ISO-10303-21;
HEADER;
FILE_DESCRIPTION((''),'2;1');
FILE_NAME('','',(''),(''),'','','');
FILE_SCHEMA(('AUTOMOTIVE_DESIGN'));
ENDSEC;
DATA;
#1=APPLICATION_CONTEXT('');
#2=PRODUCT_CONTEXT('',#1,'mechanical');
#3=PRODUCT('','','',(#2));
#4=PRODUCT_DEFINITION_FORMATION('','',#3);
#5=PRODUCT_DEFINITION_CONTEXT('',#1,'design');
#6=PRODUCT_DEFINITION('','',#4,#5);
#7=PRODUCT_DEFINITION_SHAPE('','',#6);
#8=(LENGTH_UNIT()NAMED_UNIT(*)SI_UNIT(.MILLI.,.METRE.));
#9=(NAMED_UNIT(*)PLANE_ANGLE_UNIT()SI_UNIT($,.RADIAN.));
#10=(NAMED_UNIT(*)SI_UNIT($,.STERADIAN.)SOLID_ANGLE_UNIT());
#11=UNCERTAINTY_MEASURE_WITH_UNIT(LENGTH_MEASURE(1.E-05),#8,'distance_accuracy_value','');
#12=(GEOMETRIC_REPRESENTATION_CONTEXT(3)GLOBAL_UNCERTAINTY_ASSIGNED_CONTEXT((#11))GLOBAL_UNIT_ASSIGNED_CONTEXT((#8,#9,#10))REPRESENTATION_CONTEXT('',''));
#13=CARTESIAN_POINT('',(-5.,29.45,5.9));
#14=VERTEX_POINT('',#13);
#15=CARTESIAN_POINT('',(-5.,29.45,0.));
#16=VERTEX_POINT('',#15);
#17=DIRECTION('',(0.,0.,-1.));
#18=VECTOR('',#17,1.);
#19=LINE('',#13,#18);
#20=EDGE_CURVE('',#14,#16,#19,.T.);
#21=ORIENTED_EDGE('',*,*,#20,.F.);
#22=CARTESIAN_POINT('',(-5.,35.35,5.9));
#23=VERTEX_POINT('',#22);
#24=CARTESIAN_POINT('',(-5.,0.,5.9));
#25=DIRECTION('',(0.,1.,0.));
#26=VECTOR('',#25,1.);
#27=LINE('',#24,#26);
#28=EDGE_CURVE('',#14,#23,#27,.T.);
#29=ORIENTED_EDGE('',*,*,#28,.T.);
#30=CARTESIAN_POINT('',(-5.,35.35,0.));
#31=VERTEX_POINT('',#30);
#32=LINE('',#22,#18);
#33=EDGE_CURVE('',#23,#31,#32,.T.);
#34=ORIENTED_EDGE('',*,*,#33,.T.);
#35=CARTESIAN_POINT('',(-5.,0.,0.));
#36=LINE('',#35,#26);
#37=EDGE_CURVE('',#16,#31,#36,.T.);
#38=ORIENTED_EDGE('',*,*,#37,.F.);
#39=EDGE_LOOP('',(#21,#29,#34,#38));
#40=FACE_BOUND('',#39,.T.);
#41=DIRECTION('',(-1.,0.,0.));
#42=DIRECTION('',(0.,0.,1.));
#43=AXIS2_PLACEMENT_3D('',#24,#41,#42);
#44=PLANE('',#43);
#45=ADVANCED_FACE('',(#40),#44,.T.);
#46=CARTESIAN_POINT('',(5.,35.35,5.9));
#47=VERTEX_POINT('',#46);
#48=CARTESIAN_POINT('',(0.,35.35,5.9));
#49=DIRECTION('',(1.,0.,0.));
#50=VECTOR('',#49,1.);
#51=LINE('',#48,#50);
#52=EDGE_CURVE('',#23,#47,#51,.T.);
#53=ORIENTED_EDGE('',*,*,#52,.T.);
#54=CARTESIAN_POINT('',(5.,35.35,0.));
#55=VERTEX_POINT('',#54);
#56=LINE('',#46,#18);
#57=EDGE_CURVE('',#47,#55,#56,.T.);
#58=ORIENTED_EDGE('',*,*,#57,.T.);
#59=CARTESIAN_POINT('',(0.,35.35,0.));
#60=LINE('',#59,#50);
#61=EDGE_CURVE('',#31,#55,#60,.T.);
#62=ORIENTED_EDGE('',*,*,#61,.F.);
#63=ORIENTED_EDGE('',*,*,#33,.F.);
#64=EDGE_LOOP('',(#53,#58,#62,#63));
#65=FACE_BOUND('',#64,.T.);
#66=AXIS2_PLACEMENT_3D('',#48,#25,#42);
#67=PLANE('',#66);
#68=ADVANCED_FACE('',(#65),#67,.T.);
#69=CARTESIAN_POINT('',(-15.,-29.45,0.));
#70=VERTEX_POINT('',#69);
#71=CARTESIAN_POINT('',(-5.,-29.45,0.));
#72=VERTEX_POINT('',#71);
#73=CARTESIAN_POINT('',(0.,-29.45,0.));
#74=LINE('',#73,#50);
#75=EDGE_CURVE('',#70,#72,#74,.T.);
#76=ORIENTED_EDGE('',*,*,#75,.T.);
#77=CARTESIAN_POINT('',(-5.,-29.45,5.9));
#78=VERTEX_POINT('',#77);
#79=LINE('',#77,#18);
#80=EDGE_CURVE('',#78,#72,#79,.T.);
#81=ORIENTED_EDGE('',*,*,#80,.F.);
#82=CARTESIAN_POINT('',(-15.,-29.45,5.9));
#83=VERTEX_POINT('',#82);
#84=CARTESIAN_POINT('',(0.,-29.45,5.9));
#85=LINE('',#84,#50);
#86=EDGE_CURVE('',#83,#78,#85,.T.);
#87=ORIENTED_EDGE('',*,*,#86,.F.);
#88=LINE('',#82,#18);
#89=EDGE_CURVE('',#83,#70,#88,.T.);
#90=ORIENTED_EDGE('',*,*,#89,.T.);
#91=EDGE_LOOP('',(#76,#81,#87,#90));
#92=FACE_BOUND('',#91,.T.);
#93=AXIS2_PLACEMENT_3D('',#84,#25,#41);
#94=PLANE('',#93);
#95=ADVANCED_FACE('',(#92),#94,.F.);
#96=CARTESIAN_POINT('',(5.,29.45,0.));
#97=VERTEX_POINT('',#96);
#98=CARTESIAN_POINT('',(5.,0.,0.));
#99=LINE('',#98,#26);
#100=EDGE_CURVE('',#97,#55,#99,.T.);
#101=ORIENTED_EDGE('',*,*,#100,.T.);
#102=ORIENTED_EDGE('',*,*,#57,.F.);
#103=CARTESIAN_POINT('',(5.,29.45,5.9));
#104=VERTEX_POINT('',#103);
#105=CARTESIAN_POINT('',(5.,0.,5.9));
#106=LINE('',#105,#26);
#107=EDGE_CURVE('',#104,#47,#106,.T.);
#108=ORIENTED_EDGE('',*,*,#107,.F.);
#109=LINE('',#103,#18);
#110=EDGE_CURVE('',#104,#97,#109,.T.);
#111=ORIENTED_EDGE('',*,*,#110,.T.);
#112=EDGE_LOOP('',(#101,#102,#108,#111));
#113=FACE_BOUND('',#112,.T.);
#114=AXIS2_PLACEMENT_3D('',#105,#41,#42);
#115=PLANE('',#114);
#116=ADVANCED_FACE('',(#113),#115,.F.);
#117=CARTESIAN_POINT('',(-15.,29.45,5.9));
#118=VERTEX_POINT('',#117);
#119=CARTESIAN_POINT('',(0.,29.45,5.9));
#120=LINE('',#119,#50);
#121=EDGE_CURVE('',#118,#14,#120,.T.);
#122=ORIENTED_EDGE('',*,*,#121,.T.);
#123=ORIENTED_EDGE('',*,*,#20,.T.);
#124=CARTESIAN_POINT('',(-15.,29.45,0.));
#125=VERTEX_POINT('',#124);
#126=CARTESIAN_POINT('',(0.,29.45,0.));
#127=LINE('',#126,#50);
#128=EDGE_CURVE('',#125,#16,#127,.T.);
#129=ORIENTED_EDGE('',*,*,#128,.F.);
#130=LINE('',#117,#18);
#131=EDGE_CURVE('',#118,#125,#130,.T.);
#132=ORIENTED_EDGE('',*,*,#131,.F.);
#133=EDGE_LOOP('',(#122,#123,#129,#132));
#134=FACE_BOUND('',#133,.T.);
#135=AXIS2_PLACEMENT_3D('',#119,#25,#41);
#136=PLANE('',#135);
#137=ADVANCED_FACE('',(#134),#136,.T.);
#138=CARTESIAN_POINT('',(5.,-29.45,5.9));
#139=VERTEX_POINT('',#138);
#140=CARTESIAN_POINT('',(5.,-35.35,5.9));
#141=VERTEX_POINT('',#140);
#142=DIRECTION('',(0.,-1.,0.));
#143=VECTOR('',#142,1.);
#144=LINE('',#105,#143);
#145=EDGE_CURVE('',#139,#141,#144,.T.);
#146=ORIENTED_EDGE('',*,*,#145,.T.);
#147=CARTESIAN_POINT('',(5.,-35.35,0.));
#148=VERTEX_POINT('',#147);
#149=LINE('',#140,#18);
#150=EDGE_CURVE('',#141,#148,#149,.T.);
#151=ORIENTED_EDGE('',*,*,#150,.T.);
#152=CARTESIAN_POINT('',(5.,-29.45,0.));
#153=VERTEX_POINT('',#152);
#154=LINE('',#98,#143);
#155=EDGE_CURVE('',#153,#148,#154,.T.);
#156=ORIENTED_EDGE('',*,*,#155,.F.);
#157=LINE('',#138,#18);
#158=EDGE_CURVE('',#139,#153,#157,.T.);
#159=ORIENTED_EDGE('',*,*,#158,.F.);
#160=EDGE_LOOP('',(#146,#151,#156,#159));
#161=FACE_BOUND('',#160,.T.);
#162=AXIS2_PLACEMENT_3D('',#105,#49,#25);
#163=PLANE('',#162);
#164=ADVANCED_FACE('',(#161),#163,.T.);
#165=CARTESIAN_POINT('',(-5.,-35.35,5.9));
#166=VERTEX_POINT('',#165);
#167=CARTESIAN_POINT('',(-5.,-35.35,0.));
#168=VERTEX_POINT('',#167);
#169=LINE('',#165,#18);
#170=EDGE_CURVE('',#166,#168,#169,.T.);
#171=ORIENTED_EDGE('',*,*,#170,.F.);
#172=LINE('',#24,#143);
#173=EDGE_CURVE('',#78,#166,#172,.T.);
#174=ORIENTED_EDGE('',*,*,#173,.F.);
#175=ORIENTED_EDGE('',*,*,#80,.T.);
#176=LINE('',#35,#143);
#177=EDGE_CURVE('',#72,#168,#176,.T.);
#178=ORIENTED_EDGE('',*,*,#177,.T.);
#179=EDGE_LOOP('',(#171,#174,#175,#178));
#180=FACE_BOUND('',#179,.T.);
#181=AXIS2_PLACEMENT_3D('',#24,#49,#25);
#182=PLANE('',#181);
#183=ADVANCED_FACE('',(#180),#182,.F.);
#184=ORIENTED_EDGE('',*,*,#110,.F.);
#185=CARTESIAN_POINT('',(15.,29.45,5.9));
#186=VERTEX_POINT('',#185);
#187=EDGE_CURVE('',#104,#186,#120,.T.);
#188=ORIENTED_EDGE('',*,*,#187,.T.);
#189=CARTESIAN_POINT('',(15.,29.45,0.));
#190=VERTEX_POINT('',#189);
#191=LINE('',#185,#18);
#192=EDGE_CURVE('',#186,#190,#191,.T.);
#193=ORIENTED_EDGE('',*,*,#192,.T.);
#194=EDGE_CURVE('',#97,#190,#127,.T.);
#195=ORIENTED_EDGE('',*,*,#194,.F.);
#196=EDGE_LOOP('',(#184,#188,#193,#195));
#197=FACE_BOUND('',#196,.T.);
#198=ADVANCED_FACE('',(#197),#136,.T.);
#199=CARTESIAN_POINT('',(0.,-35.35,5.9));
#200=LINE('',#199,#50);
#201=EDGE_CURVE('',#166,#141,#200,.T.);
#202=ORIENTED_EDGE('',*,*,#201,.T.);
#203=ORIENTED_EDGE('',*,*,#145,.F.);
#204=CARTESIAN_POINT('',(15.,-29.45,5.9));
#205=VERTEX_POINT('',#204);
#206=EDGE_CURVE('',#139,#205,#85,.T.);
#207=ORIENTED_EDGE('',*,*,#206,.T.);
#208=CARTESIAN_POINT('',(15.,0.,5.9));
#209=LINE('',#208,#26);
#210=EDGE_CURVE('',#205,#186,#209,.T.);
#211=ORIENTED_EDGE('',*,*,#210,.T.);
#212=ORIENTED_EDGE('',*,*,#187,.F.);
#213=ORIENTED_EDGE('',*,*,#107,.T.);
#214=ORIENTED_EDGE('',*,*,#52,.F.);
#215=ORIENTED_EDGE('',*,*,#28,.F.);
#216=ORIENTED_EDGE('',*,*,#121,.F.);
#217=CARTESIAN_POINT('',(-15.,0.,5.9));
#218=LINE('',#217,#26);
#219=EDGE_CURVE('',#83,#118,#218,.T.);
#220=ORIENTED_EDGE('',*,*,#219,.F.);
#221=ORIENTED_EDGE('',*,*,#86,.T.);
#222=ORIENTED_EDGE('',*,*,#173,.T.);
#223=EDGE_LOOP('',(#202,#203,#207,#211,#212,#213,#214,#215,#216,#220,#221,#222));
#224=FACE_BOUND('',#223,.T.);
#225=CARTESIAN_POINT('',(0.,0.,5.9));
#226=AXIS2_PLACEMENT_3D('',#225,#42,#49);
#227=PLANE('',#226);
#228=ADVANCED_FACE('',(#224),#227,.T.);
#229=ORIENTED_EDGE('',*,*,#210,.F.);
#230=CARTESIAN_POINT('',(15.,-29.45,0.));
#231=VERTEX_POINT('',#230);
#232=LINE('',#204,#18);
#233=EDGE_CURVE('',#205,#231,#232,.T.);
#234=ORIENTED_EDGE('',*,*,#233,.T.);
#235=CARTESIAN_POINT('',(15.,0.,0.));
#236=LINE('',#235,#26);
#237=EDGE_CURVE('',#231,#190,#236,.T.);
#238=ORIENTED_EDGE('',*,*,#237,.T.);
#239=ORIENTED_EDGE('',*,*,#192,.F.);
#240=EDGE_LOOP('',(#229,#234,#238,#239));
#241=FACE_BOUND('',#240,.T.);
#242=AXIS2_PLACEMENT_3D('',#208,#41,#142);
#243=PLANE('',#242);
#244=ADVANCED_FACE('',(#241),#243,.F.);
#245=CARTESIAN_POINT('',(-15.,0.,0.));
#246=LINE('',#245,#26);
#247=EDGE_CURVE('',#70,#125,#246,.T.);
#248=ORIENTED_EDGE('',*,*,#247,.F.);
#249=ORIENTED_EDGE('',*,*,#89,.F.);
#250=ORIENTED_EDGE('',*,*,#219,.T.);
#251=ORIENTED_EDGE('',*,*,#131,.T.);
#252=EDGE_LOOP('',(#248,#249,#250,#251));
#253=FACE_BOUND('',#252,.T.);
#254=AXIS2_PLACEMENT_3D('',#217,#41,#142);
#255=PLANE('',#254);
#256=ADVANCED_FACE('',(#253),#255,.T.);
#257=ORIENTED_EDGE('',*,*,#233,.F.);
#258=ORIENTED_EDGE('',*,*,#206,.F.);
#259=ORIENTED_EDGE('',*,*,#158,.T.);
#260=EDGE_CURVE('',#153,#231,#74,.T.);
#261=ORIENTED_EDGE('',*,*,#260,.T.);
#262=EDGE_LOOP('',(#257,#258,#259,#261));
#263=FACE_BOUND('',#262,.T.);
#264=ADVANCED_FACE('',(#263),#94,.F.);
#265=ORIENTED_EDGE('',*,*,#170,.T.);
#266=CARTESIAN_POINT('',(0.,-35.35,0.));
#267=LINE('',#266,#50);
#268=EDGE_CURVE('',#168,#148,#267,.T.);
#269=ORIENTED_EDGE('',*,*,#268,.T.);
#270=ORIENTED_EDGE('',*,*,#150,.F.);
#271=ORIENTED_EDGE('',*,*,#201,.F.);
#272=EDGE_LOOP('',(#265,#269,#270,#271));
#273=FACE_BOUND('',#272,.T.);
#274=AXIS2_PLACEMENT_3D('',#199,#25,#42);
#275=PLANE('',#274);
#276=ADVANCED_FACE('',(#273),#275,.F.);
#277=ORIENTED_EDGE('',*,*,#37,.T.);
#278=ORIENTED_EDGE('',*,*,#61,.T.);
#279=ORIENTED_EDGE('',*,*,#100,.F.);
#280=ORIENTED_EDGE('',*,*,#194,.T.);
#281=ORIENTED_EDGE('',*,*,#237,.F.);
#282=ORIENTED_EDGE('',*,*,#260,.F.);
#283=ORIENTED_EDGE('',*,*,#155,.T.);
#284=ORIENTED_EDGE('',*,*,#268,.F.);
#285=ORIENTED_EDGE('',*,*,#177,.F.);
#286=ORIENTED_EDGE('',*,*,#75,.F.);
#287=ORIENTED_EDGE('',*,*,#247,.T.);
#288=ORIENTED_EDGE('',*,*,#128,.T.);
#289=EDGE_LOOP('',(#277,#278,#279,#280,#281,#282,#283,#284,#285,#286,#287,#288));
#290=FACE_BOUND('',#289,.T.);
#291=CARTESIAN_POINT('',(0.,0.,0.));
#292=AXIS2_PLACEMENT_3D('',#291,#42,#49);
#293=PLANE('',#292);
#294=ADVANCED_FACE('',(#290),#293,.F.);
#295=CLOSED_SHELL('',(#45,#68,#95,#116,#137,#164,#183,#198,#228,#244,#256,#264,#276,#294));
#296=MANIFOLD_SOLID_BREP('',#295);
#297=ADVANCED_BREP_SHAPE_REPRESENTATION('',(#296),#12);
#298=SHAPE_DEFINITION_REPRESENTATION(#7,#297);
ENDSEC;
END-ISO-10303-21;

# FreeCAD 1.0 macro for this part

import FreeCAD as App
import Part
import Sketcher
from FreeCAD import Vector
Q = App.Units.Quantity

doc = App.newDocument("Part")
body = doc.addObject("PartDesign::Body", "Body")

sketch1 = body.newObject("Sketcher::SketchObject", "Sketch")
sketch1.AttachmentSupport = (doc.getObject("XY_Plane"), [""])
sketch1.MapMode = "FlatFace"
sketch1.addGeometry([
    Part.LineSegment(Vector(-5, 35.35, 0), Vector(-5, 29.45, 0)),
    Part.LineSegment(Vector(-5, 29.45, 0), Vector(-15, 29.45, 0)),
    Part.LineSegment(Vector(-15, 29.45, 0), Vector(-15, -29.45, 0)),
    Part.LineSegment(Vector(-15, -29.45, 0), Vector(-5, -29.45, 0)),
    Part.LineSegment(Vector(-5, -29.45, 0), Vector(-5, -35.35, 0)),
    Part.LineSegment(Vector(-5, -35.35, 0), Vector(5, -35.35, 0)),
    Part.LineSegment(Vector(5, -35.35, 0), Vector(5, -29.45, 0)),
    Part.LineSegment(Vector(5, -29.45, 0), Vector(15, -29.45, 0)),
    Part.LineSegment(Vector(15, -29.45, 0), Vector(15, 29.45, 0)),
    Part.LineSegment(Vector(15, 29.45, 0), Vector(5, 29.45, 0)),
    Part.LineSegment(Vector(5, 29.45, 0), Vector(5, 35.35, 0)),
    Part.LineSegment(Vector(5, 35.35, 0), Vector(-5, 35.35, 0)),
], False)
sketch1.addConstraint([
    Sketcher.Constraint("Coincident", 0, 2, 1, 1),
    Sketcher.Constraint("Coincident", 1, 2, 2, 1),
    Sketcher.Constraint("Coincident", 2, 2, 3, 1),
    Sketcher.Constraint("Coincident", 3, 2, 4, 1),
    Sketcher.Constraint("Coincident", 4, 2, 5, 1),
    Sketcher.Constraint("Coincident", 5, 2, 6, 1),
    Sketcher.Constraint("Coincident", 6, 2, 7, 1),
    Sketcher.Constraint("Coincident", 7, 2, 8, 1),
    Sketcher.Constraint("Coincident", 8, 2, 9, 1),
    Sketcher.Constraint("Coincident", 9, 2, 10, 1),
    Sketcher.Constraint("Coincident", 10, 2, 11, 1),
    Sketcher.Constraint("Coincident", 11, 2, 0, 1),
    Sketcher.Constraint("Vertical", 0),
    Sketcher.Constraint("Horizontal", 1),
    Sketcher.Constraint("Vertical", 2),
    Sketcher.Constraint("Horizontal", 3),
    Sketcher.Constraint("Vertical", 4),
    Sketcher.Constraint("Horizontal", 5),
    Sketcher.Constraint("Vertical", 6),
    Sketcher.Constraint("Horizontal", 7),
    Sketcher.Constraint("Vertical", 8),
    Sketcher.Constraint("Horizontal", 9),
    Sketcher.Constraint("Vertical", 10),
    Sketcher.Constraint("Horizontal", 11),
    Sketcher.Constraint("Symmetric", 0, 2, 6, 2, -1, 1),
    Sketcher.Constraint("Symmetric", 2, 2, 8, 2, -1, 1),
    Sketcher.Constraint("Symmetric", 4, 2, 10, 2, -1, 1),
    Sketcher.Constraint("Symmetric", 3, 2, 6, 2, -2),
    Sketcher.Constraint("Equal", 3, 5),
    Sketcher.Constraint("DistanceX", 1, 2, 1, 1, Q("10 mm")),
    Sketcher.Constraint("DistanceY", 0, 2, 0, 1, Q("5.9 mm")),
    Sketcher.Constraint("DistanceY", 2, 2, 2, 1, Q("58.9 mm")),
])
pad1 = body.newObject("PartDesign::Pad", "Pad")
pad1.Profile = sketch1
pad1.Length = 5.9

doc.recompute()
